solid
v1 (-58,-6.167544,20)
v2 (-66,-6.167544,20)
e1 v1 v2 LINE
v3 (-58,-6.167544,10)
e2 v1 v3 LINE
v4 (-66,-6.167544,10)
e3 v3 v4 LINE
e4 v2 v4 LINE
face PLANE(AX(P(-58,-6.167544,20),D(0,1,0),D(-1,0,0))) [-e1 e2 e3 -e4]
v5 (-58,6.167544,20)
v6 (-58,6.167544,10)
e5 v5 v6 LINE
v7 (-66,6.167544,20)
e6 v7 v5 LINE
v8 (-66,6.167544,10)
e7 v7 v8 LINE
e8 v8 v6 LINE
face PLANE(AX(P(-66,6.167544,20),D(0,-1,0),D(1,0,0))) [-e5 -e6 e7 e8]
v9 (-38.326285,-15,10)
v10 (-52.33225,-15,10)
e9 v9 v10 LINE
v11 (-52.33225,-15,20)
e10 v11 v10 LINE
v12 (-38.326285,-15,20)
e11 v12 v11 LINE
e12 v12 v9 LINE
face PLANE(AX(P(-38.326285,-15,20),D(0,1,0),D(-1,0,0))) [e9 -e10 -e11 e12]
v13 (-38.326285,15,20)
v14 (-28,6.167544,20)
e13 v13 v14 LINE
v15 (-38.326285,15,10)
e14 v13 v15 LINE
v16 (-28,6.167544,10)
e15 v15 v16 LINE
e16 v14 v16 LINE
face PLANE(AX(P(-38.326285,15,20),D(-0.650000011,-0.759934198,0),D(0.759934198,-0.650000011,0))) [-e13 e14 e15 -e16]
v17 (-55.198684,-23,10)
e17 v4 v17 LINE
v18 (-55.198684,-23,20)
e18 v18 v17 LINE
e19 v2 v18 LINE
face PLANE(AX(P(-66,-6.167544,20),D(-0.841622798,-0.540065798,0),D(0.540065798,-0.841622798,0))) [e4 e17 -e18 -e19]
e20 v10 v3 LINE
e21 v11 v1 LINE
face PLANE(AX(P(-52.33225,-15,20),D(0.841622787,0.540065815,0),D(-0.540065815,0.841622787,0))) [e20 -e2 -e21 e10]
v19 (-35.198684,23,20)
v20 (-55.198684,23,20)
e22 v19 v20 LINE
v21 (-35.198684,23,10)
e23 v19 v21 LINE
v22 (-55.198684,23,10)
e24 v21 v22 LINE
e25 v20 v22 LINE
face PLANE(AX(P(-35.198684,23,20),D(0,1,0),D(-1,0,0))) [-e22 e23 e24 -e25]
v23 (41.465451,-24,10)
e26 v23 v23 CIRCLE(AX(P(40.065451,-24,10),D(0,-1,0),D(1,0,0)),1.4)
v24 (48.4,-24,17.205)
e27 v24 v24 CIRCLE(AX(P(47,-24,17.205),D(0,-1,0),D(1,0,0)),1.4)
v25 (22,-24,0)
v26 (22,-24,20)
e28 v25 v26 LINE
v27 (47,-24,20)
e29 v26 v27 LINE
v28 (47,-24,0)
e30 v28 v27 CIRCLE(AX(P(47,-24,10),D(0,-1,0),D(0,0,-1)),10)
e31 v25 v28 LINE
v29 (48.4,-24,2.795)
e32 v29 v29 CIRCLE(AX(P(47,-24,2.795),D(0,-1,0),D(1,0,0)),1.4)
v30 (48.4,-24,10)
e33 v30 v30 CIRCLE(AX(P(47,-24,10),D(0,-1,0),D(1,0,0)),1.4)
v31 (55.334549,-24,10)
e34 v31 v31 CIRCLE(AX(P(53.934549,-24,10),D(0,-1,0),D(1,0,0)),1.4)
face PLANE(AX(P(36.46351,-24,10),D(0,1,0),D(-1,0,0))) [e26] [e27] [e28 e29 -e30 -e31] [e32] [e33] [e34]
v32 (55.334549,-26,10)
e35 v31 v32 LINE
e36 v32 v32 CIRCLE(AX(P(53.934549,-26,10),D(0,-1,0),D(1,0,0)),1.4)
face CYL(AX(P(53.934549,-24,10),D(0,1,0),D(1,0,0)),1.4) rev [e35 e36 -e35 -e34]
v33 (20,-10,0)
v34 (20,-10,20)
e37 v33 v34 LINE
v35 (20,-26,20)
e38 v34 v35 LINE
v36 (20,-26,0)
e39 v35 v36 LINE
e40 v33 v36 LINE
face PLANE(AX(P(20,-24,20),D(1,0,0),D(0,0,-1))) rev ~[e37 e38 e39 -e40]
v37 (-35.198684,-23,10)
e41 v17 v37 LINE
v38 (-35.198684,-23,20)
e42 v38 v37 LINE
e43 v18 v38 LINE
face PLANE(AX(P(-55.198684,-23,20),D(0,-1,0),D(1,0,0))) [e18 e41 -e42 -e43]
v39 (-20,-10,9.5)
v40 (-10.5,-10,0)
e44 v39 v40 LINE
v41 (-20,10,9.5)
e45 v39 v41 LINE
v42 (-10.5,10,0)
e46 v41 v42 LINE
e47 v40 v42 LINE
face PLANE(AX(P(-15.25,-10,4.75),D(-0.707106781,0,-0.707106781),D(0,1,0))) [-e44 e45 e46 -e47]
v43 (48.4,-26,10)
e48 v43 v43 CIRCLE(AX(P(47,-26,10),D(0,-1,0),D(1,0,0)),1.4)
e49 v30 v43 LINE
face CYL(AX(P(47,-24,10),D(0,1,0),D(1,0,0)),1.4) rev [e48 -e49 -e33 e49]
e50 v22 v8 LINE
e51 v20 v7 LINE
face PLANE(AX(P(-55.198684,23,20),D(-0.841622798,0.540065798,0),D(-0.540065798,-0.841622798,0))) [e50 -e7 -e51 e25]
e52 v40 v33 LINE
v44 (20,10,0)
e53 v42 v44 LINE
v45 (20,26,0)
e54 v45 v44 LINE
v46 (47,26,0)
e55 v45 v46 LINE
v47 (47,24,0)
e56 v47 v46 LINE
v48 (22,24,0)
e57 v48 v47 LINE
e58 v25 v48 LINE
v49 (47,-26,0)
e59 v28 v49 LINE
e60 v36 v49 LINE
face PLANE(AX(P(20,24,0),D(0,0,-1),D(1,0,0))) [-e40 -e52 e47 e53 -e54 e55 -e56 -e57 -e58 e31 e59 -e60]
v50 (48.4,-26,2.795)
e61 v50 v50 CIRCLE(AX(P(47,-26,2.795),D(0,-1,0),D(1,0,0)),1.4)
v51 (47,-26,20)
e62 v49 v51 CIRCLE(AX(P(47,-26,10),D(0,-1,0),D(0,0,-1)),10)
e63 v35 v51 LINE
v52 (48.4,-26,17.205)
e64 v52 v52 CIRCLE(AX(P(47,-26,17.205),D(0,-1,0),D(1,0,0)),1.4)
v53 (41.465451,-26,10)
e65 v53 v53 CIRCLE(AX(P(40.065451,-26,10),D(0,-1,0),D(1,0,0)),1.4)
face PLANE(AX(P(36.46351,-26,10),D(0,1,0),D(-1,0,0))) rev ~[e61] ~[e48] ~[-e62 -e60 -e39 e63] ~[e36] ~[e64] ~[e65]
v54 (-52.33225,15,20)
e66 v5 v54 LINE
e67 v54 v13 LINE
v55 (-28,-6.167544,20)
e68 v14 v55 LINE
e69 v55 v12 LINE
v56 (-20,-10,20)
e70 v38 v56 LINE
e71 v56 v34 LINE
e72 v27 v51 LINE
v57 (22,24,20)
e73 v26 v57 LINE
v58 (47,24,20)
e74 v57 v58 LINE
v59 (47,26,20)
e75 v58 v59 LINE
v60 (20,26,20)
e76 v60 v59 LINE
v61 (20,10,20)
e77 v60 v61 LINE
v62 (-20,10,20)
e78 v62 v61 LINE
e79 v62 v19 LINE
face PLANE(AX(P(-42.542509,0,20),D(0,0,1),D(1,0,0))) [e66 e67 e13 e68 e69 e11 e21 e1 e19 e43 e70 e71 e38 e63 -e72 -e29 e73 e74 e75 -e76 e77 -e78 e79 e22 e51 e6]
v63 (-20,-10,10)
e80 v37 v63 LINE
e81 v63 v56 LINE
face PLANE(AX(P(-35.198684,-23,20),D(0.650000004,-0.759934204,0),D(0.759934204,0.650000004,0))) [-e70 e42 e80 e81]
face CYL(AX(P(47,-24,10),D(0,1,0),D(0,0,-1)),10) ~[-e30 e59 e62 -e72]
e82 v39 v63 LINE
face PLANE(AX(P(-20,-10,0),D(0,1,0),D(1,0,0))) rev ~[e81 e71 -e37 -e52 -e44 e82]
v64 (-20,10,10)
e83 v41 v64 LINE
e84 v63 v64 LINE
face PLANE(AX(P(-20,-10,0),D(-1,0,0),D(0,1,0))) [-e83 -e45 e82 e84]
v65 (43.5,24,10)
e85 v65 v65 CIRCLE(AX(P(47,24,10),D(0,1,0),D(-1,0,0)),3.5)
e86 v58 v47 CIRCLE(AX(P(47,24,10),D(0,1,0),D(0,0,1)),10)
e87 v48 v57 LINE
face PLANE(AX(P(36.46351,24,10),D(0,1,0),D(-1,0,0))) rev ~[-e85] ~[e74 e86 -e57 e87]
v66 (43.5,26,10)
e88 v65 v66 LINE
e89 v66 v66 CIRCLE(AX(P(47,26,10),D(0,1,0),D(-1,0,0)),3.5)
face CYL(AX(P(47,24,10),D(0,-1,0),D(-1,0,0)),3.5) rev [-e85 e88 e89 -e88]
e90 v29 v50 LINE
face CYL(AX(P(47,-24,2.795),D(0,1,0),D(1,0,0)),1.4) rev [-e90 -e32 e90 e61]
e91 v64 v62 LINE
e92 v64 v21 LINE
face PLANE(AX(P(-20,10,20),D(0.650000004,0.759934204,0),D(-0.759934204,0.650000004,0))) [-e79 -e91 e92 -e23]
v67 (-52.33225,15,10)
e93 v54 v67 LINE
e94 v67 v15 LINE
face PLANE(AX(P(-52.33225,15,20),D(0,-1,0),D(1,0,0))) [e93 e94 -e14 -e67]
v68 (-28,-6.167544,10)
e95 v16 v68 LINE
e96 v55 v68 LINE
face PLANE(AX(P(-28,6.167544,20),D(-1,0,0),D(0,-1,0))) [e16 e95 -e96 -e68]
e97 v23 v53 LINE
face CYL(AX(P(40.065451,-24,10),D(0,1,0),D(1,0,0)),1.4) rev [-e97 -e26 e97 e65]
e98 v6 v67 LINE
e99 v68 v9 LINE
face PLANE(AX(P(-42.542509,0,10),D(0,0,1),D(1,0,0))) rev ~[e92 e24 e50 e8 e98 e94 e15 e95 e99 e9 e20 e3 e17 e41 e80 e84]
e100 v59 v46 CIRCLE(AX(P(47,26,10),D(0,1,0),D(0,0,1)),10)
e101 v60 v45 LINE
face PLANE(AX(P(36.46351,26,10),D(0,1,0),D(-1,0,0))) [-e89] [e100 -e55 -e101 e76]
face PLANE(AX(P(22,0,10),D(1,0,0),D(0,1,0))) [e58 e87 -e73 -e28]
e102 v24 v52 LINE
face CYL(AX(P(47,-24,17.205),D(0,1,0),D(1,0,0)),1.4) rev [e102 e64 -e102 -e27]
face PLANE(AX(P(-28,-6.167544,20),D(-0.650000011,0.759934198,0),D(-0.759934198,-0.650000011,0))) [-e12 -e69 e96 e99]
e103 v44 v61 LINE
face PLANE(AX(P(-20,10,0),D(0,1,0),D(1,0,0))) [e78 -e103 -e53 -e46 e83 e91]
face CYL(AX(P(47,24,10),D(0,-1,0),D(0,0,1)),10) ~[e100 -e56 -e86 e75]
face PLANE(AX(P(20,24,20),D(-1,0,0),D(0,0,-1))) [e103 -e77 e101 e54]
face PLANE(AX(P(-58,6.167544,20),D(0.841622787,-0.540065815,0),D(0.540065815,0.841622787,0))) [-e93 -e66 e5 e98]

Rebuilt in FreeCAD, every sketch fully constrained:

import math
import FreeCAD as App
import Part
import Sketcher
from FreeCAD import Vector
Q = App.Units.Quantity


def edges_at(feature, points):
    """Names of the edges that pass closest to the given points."""
    edges = feature.Shape.Edges
    near = lambda p: min(range(len(edges)), key=lambda i: edges[i].distToShape(Part.Vertex(*p))[0])
    return sorted({f"Edge{near(p) + 1}" for p in points})


def add_polygon(sketch, points):
    """Adds a closed chain of lines whose ends are joined by coincident constraints."""
    first, n = sketch.GeometryCount, len(points)
    for a, b in zip(points, points[1:] + points[:1]):
        sketch.addGeometry(Part.LineSegment(App.Vector(*a, 0), App.Vector(*b, 0)), False)
    for i in range(n):
        sketch.addConstraint(Sketcher.Constraint("Coincident", first + i, 2, first + (i + 1) % n, 1))

doc = App.newDocument("Part")
body = doc.addObject("PartDesign::Body", "Body")

sketch1 = doc.addObject("Sketcher::SketchObject", "Sketch")
body.addObject(sketch1)
sketch1.AttachmentSupport = (doc.XY_Plane, [""])
sketch1.MapMode = "FlatFace"
add_polygon(sketch1, [(-20, 10), (-20, -10), (20, -10), (20, 10)])
sketch1.addConstraint([
    Sketcher.Constraint("Vertical", 0),
    Sketcher.Constraint("Horizontal", 1),
    Sketcher.Constraint("Vertical", 2),
    Sketcher.Constraint("Horizontal", 3),
    Sketcher.Constraint("Symmetric", 0, 2, 2, 2, -1, 1),
    Sketcher.Constraint("DistanceX", 1, 1, 1, 2, Q("40 mm")),
    Sketcher.Constraint("DistanceY", 0, 2, 0, 1, Q("20 mm")),
])
pad1 = doc.addObject("PartDesign::Pad", "Pad")
body.addObject(pad1)
pad1.Profile = sketch1
pad1.Length = 20

sketch2 = doc.addObject("Sketcher::SketchObject", "Sketch001")
body.addObject(sketch2)
sketch2.AttachmentSupport = (doc.YZ_Plane, [""])
sketch2.MapMode = "FlatFace"
sketch2.AttachmentOffset = App.Placement(Vector(0, 0, 20), App.Rotation())
add_polygon(sketch2, [(-24, 20), (-24, 0), (24, 0), (24, 20)])
sketch2.addConstraint([
    Sketcher.Constraint("Vertical", 0),
    Sketcher.Constraint("Horizontal", 1),
    Sketcher.Constraint("Vertical", 2),
    Sketcher.Constraint("Horizontal", 3),
    Sketcher.Constraint("Symmetric", 0, 2, 1, 2, -1, 1),
    Sketcher.Constraint("DistanceX", 1, 1, 1, 2, Q("48 mm")),
    Sketcher.Constraint("DistanceY", 0, 2, 0, 1, Q("20 mm")),
])
pad2 = doc.addObject("PartDesign::Pad", "Pad001")
body.addObject(pad2)
pad2.Profile = sketch2
pad2.Length = 2

sketch3 = doc.addObject("Sketcher::SketchObject", "Sketch002")
body.addObject(sketch3)
sketch3.AttachmentSupport = (doc.XZ_Plane, [""])
sketch3.MapMode = "FlatFace"
sketch3.AttachmentOffset = App.Placement(Vector(0, 0, 24), App.Rotation())
sketch3.addGeometry([
    Part.LineSegment(Vector(47, 20, 0), Vector(20, 20, 0)),
    Part.LineSegment(Vector(20, 20, 0), Vector(20, 0, 0)),
    Part.LineSegment(Vector(20, 0, 0), Vector(47, 0, 0)),
    Part.ArcOfCircle(Part.Circle(Vector(47, 10, 0), Vector(0, 0, 1), 10), math.radians(-90), math.radians(90)),
    Part.Circle(Vector(47, 2.8, 0), Vector(0, 0, 1), 1.4),
    Part.Circle(Vector(53.9, 10, 0), Vector(0, 0, 1), 1.4),
    Part.Circle(Vector(47, 10, 0), Vector(0, 0, 1), 1.4),
    Part.Circle(Vector(40.1, 10, 0), Vector(0, 0, 1), 1.4),
    Part.Circle(Vector(47, 17.2, 0), Vector(0, 0, 1), 1.4),
], False)
sketch3.addConstraint([
    Sketcher.Constraint("Coincident", 0, 2, 1, 1),
    Sketcher.Constraint("Coincident", 1, 2, 2, 1),
    Sketcher.Constraint("Tangent", 2, 2, 3, 1),
    Sketcher.Constraint("Tangent", 3, 2, 0, 1),
    Sketcher.Constraint("Horizontal", 0),
    Sketcher.Constraint("Vertical", 1),
    Sketcher.Constraint("Horizontal", 2),
    Sketcher.Constraint("Coincident", 6, 3, 3, 3),
    Sketcher.Constraint("Equal", 4, 5),
    Sketcher.Constraint("Equal", 5, 6),
    Sketcher.Constraint("Equal", 6, 7),
    Sketcher.Constraint("Equal", 7, 8),
    Sketcher.Constraint("PointOnObject", 1, 2, -1),
    Sketcher.Constraint("Horizontal", 3, 3, 5, 3),
    Sketcher.Constraint("Horizontal", 6, 3, 7, 3),
    Sketcher.Constraint("Vertical", 3, 3, 4, 3),
    Sketcher.Constraint("Vertical", 6, 3, 8, 3),
    Sketcher.Constraint("Radius", 3, Q("10 mm")),
    Sketcher.Constraint("Diameter", 4, Q("2.8 mm")),
    Sketcher.Constraint("DistanceX", 0, 2, 0, 1, Q("27 mm")),
    Sketcher.Constraint("DistanceX", -1, 1, 3, 3, Q("47 mm")),
    Sketcher.Constraint("DistanceY", 4, 3, 8, 3, Q("14.41 mm")),
    Sketcher.Constraint("DistanceY", -1, 1, 4, 3, Q("2.795 mm")),
    Sketcher.Constraint("DistanceX", -1, 1, 5, 3, Q("53.934549 mm")),
    Sketcher.Constraint("DistanceX", -1, 1, 7, 3, Q("40.065451 mm")),
])
pad3 = doc.addObject("PartDesign::Pad", "Pad002")
body.addObject(pad3)
pad3.Profile = sketch3
pad3.Length = 2

sketch4 = doc.addObject("Sketcher::SketchObject", "Sketch003")
body.addObject(sketch4)
sketch4.AttachmentSupport = (doc.XZ_Plane, [""])
sketch4.MapMode = "FlatFace"
sketch4.AttachmentOffset = App.Placement(Vector(0, 0, -24), App.Rotation())
sketch4.addGeometry([
    Part.LineSegment(Vector(20, 20, 0), Vector(47, 20, 0)),
    Part.ArcOfCircle(Part.Circle(Vector(47, 10, 0), Vector(0, 0, 1), 10), math.radians(-90), math.radians(90)),
    Part.LineSegment(Vector(47, 0, 0), Vector(20, 0, 0)),
    Part.LineSegment(Vector(20, 0, 0), Vector(20, 20, 0)),
    Part.Circle(Vector(47, 10, 0), Vector(0, 0, 1), 3.5),
], False)
sketch4.addConstraint([
    Sketcher.Constraint("Tangent", 0, 2, 1, 2),
    Sketcher.Constraint("Tangent", 1, 1, 2, 1),
    Sketcher.Constraint("Coincident", 2, 2, 3, 1),
    Sketcher.Constraint("Coincident", 3, 2, 0, 1),
    Sketcher.Constraint("Horizontal", 0),
    Sketcher.Constraint("Horizontal", 2),
    Sketcher.Constraint("Vertical", 3),
    Sketcher.Constraint("Coincident", 4, 3, 1, 3),
    Sketcher.Constraint("PointOnObject", 1, 1, -1),
    Sketcher.Constraint("Diameter", 4, Q("7 mm")),
    Sketcher.Constraint("Radius", 1, Q("10 mm")),
    Sketcher.Constraint("DistanceX", 0, 1, 0, 2, Q("27 mm")),
    Sketcher.Constraint("DistanceX", -1, 1, 1, 3, Q("47 mm")),
])
pad4 = doc.addObject("PartDesign::Pad", "Pad003")
body.addObject(pad4)
pad4.Profile = sketch4
pad4.Length = 2
pad4.Reversed = True

sketch5 = doc.addObject("Sketcher::SketchObject", "Sketch004")
body.addObject(sketch5)
sketch5.AttachmentSupport = (doc.XY_Plane, [""])
sketch5.MapMode = "FlatFace"
sketch5.AttachmentOffset = App.Placement(Vector(0, 0, 20), App.Rotation())
add_polygon(sketch5, [(-20, 10), (-35, 23), (-55, 23), (-66, 6), (-58, 6), (-52, 15), (-38, 15), (-28, 6), (-28, -6), (-38, -15), (-52, -15), (-58, -6), (-66, -6), (-55, -23), (-35, -23), (-20, -10)])
sketch5.addConstraint([
    Sketcher.Constraint("Horizontal", 1),
    Sketcher.Constraint("Horizontal", 3),
    Sketcher.Constraint("Horizontal", 5),
    Sketcher.Constraint("Vertical", 7),
    Sketcher.Constraint("Horizontal", 9),
    Sketcher.Constraint("Horizontal", 11),
    Sketcher.Constraint("Horizontal", 13),
    Sketcher.Constraint("Vertical", 15),
    Sketcher.Constraint("Symmetric", 5, 2, 8, 2, -1),
    Sketcher.Constraint("Symmetric", 3, 2, 10, 2, -1),
    Sketcher.Constraint("Symmetric", 1, 2, 12, 2, -1),
    Sketcher.Constraint("Parallel", 2, 4),
    Sketcher.Constraint("Parallel", 0, 6),
    Sketcher.Constraint("Parallel", 10, 12),
    Sketcher.Constraint("Parallel", 8, 14),
    Sketcher.Constraint("Horizontal", 3, 2, 6, 2),
    Sketcher.Constraint("Horizontal", 7, 2, 10, 2),
    Sketcher.Constraint("Vertical", 4, 2, 9, 2),
    Sketcher.Constraint("Vertical", 0, 2, 13, 2),
    Sketcher.Constraint("Equal", 13, 15),
    Sketcher.Constraint("Equal", 0, 2),
    Sketcher.Constraint("DistanceX", 1, 2, 1, 1, Q("20 mm")),
    Sketcher.Constraint("DistanceX", 3, 1, 3, 2, Q("8 mm")),
    Sketcher.Constraint("Distance", 0, Q("20 mm")),
    Sketcher.Constraint("DistanceY", -1, 1, 0, 2, Q("23 mm")),
    Sketcher.Constraint("DistanceX", 2, 2, -1, 1, Q("66 mm")),
    Sketcher.Constraint("DistanceY", -1, 1, 4, 2, Q("15 mm")),
    Sketcher.Constraint("DistanceX", 6, 2, -1, 1, Q("28 mm")),
    Sketcher.Constraint("DistanceX", 14, 2, -1, 1, Q("20 mm")),
])
pad5 = doc.addObject("PartDesign::Pad", "Pad004")
body.addObject(pad5)
pad5.Profile = sketch5
pad5.Length = 10
pad5.Reversed = True
doc.recompute()

chamfer = doc.addObject("PartDesign::Chamfer", "Chamfer")
body.addObject(chamfer)
chamfer.Base = (pad5, edges_at(pad5, [(-20, 0, 0)]))
chamfer.Size = 9.5

doc.recompute()
